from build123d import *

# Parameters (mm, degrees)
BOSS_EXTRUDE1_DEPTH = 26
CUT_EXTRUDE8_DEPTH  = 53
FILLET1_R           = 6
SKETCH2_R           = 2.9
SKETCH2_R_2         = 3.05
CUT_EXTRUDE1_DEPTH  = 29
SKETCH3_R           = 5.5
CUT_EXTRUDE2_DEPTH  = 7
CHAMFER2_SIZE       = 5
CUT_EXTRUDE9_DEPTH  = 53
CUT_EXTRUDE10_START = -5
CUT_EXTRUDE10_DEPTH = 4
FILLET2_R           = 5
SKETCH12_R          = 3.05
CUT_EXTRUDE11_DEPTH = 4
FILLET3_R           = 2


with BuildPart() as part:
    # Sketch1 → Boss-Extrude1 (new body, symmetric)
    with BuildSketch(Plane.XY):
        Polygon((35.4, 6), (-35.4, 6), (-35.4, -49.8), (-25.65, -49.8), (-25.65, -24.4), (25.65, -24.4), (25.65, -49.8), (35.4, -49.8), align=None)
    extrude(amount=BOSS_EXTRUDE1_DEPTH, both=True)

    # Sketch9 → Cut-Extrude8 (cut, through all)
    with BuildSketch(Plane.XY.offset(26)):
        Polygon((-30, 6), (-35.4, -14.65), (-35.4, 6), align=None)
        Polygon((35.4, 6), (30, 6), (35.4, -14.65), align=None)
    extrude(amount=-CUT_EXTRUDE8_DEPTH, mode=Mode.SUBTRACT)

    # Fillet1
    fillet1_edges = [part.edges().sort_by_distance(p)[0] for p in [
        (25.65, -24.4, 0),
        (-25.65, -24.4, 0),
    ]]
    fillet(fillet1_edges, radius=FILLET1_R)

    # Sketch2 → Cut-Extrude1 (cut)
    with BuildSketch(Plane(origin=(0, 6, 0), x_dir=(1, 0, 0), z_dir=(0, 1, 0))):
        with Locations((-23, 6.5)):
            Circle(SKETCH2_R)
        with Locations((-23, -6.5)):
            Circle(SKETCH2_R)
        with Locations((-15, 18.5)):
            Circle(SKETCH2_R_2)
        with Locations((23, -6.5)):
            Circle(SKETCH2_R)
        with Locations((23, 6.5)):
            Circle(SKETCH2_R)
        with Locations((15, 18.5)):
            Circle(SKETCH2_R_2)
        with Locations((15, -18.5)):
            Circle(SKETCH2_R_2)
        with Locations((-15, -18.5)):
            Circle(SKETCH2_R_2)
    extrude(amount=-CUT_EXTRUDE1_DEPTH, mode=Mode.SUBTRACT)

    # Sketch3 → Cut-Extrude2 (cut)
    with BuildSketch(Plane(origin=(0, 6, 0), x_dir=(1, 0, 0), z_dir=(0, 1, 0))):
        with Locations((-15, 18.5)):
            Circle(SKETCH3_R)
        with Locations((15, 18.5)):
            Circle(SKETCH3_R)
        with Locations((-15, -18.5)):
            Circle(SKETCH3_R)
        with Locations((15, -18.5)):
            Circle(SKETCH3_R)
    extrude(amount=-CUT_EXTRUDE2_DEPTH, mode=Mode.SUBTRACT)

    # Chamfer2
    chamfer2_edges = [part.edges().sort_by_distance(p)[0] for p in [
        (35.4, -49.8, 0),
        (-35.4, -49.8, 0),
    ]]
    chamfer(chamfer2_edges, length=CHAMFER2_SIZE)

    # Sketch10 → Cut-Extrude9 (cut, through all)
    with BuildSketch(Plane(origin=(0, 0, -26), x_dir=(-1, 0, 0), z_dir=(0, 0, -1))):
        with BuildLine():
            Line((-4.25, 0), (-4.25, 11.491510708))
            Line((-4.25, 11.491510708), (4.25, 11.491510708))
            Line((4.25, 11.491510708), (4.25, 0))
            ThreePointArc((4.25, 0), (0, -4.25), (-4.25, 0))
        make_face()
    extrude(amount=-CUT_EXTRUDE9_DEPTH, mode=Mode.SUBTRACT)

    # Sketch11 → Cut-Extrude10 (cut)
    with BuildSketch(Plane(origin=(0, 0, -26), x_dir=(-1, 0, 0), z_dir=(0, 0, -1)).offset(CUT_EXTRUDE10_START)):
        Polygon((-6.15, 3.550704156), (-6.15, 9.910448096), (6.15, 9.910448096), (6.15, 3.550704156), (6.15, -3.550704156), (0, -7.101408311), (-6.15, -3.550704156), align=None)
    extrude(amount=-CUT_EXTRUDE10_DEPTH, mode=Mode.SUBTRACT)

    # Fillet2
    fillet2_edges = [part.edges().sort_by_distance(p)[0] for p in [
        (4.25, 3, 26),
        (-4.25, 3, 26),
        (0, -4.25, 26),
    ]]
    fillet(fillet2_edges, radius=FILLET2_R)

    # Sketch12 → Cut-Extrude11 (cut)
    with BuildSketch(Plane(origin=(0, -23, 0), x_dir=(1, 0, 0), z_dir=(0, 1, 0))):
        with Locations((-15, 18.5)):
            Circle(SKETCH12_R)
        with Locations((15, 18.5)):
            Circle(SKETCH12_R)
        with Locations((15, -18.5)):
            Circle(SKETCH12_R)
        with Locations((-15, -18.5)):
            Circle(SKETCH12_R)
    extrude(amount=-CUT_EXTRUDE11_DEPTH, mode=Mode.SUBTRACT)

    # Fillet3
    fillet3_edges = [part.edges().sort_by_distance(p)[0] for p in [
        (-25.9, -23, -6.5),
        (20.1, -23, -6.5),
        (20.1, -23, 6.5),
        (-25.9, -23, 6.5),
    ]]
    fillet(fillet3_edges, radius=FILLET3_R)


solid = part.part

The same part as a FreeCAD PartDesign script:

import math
import FreeCAD as App
import Part
import Sketcher

V = App.Vector
Q = App.Units.Quantity


def edges_at(feature, points):
    """Names of the edges that pass closest to the given points."""
    edges = feature.Shape.Edges
    near = lambda p: min(range(len(edges)), key=lambda i: edges[i].distToShape(Part.Vertex(*p))[0])
    return sorted({f"Edge{near(p) + 1}" for p in points})

doc = App.newDocument("Part")
body = doc.addObject("PartDesign::Body", "Body")

# Sketch on XY plane
sketch1 = body.newObject("Sketcher::SketchObject", "Sketch")
sketch1.AttachmentSupport = (doc.getObject("XY_Plane"), [""])
sketch1.MapMode = "FlatFace"
sketch1.addGeometry([
    Part.LineSegment(V(35, 6, 0), V(-35, 6, 0)),  # 0
    Part.LineSegment(V(-35, 6, 0), V(-35, -50, 0)),  # 1
    Part.LineSegment(V(-35, -50, 0), V(-26, -50, 0)),  # 2
    Part.LineSegment(V(-26, -50, 0), V(-26, -24, 0)),  # 3
    Part.LineSegment(V(-26, -24, 0), V(26, -24, 0)),  # 4
    Part.LineSegment(V(26, -24, 0), V(26, -50, 0)),  # 5
    Part.LineSegment(V(26, -50, 0), V(35, -50, 0)),  # 6
    Part.LineSegment(V(35, -50, 0), V(35, 6, 0)),  # 7
], False)
sketch1.addConstraint([
    Sketcher.Constraint("Coincident", 0, 2, 1, 1),
    Sketcher.Constraint("Coincident", 1, 2, 2, 1),
    Sketcher.Constraint("Coincident", 2, 2, 3, 1),
    Sketcher.Constraint("Coincident", 3, 2, 4, 1),
    Sketcher.Constraint("Coincident", 4, 2, 5, 1),
    Sketcher.Constraint("Coincident", 5, 2, 6, 1),
    Sketcher.Constraint("Coincident", 6, 2, 7, 1),
    Sketcher.Constraint("Coincident", 7, 2, 0, 1),
    Sketcher.Constraint("Horizontal", 0),
    Sketcher.Constraint("Vertical", 1),
    Sketcher.Constraint("Horizontal", 2),
    Sketcher.Constraint("Vertical", 3),
    Sketcher.Constraint("Horizontal", 4),
    Sketcher.Constraint("Vertical", 5),
    Sketcher.Constraint("Horizontal", 6),
    Sketcher.Constraint("Vertical", 7),
    Sketcher.Constraint("Symmetric", 2, 2, 5, 2, -2),
    Sketcher.Constraint("Equal", 2, 6),
    Sketcher.Constraint("DistanceX", 0, 2, 0, 1, Q("70.8 mm")),
    Sketcher.Constraint("DistanceX", 4, 1, 4, 2, Q("51.3 mm")),
    Sketcher.Constraint("DistanceY", 1, 2, 1, 1, Q("55.8 mm")),
    Sketcher.Constraint("DistanceY", 3, 1, 3, 2, Q("25.4 mm")),
    Sketcher.Constraint("DistanceY", -1, 1, 0, 2, Q("6 mm")),
])
pad1 = body.newObject("PartDesign::Pad", "Pad")
pad1.Profile = sketch1
pad1.Length = 52
pad1.Midplane = True

# Sketch on XY plane
sketch2 = body.newObject("Sketcher::SketchObject", "Sketch001")
sketch2.AttachmentSupport = (doc.getObject("XY_Plane"), [""])
sketch2.MapMode = "FlatFace"
sketch2.AttachmentOffset = App.Placement(V(0, 0, 26), App.Rotation())
sketch2.addGeometry([
    Part.LineSegment(V(-35, -15, 0), V(-30, 6, 0)),  # 0
    Part.LineSegment(V(-30, 6, 0), V(-35, 6, 0)),  # 1
    Part.LineSegment(V(-35, 6, 0), V(-35, -15, 0)),  # 2
    Part.LineSegment(V(35, 6, 0), V(30, 6, 0)),  # 3
    Part.LineSegment(V(30, 6, 0), V(35, -15, 0)),  # 4
    Part.LineSegment(V(35, -15, 0), V(35, 6, 0)),  # 5
], False)
sketch2.addConstraint([
    Sketcher.Constraint("Coincident", 0, 2, 1, 1),
    Sketcher.Constraint("Coincident", 1, 2, 2, 1),
    Sketcher.Constraint("Coincident", 2, 2, 0, 1),
    Sketcher.Constraint("Coincident", 3, 2, 4, 1),
    Sketcher.Constraint("Coincident", 4, 2, 5, 1),
    Sketcher.Constraint("Coincident", 5, 2, 3, 1),
    Sketcher.Constraint("Horizontal", 1),
    Sketcher.Constraint("Vertical", 2),
    Sketcher.Constraint("Horizontal", 3),
    Sketcher.Constraint("Vertical", 5),
    Sketcher.Constraint("Symmetric", 0, 2, 3, 2, -2),
    Sketcher.Constraint("Symmetric", 2, 2, 4, 2, -2),
    Sketcher.Constraint("DistanceX", 1, 2, 1, 1, Q("5.4 mm")),
    Sketcher.Constraint("DistanceX", 0, 2, -1, 1, Q("30 mm")),
    Sketcher.Constraint("DistanceY", -1, 1, 0, 2, Q("6 mm")),
    Sketcher.Constraint("DistanceY", 2, 2, 2, 1, Q("20.65 mm")),
])
pocket1 = body.newObject("PartDesign::Pocket", "Pocket")
pocket1.Profile = sketch2
pocket1.Type = "ThroughAll"
doc.recompute()

fillet = body.newObject("PartDesign::Fillet", "Fillet")
fillet.Base = (pocket1, edges_at(pocket1, [(25.65, -24.4, 0), (-25.65, -24.4, 0)]))
fillet.Radius = 6

# Sketch on XZ plane
sketch3 = body.newObject("Sketcher::SketchObject", "Sketch002")
sketch3.AttachmentSupport = (doc.getObject("XZ_Plane"), [""])
sketch3.MapMode = "FlatFace"
sketch3.AttachmentOffset = App.Placement(V(0, 0, -6), App.Rotation())
sketch3.addGeometry([
    Part.Circle(V(-23, -6.5, 0), V(0, 0, 1), 2.9),  # 0
    Part.Circle(V(-23, 6.5, 0), V(0, 0, 1), 2.9),  # 1
    Part.Circle(V(-15, -18.5, 0), V(0, 0, 1), 3),  # 2
    Part.Circle(V(23, 6.5, 0), V(0, 0, 1), 2.9),  # 3
    Part.Circle(V(23, -6.5, 0), V(0, 0, 1), 2.9),  # 4
    Part.Circle(V(15, -18.5, 0), V(0, 0, 1), 3),  # 5
    Part.Circle(V(15, 18.5, 0), V(0, 0, 1), 3),  # 6
    Part.Circle(V(-15, 18.5, 0), V(0, 0, 1), 3),  # 7
], False)
sketch3.addConstraint([
    Sketcher.Constraint("Equal", 0, 1),
    Sketcher.Constraint("Equal", 1, 3),
    Sketcher.Constraint("Equal", 3, 4),
    Sketcher.Constraint("Equal", 2, 5),
    Sketcher.Constraint("Equal", 5, 6),
    Sketcher.Constraint("Equal", 6, 7),
    Sketcher.Constraint("Symmetric", 0, 3, 3, 3, -1, 1),
    Sketcher.Constraint("Symmetric", 1, 3, 4, 3, -1, 1),
    Sketcher.Constraint("Symmetric", 2, 3, 6, 3, -1, 1),
    Sketcher.Constraint("Symmetric", 5, 3, 7, 3, -1, 1),
    Sketcher.Constraint("Symmetric", 1, 3, 3, 3, -2),
    Sketcher.Constraint("Symmetric", 2, 3, 5, 3, -2),
    Sketcher.Constraint("Diameter", 0, Q("5.8 mm")),
    Sketcher.Constraint("Diameter", 2, Q("6.1 mm")),
    Sketcher.Constraint("DistanceX", 0, 3, -1, 1, Q("23 mm")),
    Sketcher.Constraint("DistanceX", 2, 3, -1, 1, Q("15 mm")),
    Sketcher.Constraint("DistanceY", 0, 3, 1, 3, Q("13 mm")),
    Sketcher.Constraint("DistanceY", 2, 3, 0, 3, Q("12 mm")),
])
pocket2 = body.newObject("PartDesign::Pocket", "Pocket001")
pocket2.Profile = sketch3
pocket2.Length = 29
pocket2.Reversed = True

# Sketch on XZ plane
sketch4 = body.newObject("Sketcher::SketchObject", "Sketch003")
sketch4.AttachmentSupport = (doc.getObject("XZ_Plane"), [""])
sketch4.MapMode = "FlatFace"
sketch4.AttachmentOffset = App.Placement(V(0, 0, -6), App.Rotation())
sketch4.addGeometry([
    Part.Circle(V(-15, -18, 0), V(0, 0, 1), 6),
    Part.Circle(V(15, -18, 0), V(0, 0, 1), 6),
    Part.Circle(V(-15, 18, 0), V(0, 0, 1), 6),
    Part.Circle(V(15, 18, 0), V(0, 0, 1), 6),
], False)
sketch4.addConstraint([
    Sketcher.Constraint("Equal", 0, 1),
    Sketcher.Constraint("Equal", 1, 2),
    Sketcher.Constraint("Equal", 2, 3),
    Sketcher.Constraint("Symmetric", 1, 3, 2, 3, -1, 1),
    Sketcher.Constraint("Symmetric", 0, 3, 3, 3, -1, 1),
    Sketcher.Constraint("Symmetric", 0, 3, 1, 3, -2),
    Sketcher.Constraint("Diameter", 0, Q("11 mm")),
    Sketcher.Constraint("DistanceX", 0, 3, -1, 1, Q("15 mm")),
    Sketcher.Constraint("DistanceY", 0, 3, 2, 3, Q("37 mm")),
])
pocket3 = body.newObject("PartDesign::Pocket", "Pocket002")
pocket3.Profile = sketch4
pocket3.Length = 7
pocket3.Reversed = True
doc.recompute()

chamfer = body.newObject("PartDesign::Chamfer", "Chamfer")
chamfer.Base = (pocket3, edges_at(pocket3, [(35.4, -49.8, 0), (-35.4, -49.8, 0)]))
chamfer.Size = 5

# Sketch on XY plane
sketch5 = body.newObject("Sketcher::SketchObject", "Sketch004")
sketch5.AttachmentSupport = (doc.getObject("XY_Plane"), [""])
sketch5.MapMode = "FlatFace"
sketch5.AttachmentOffset = App.Placement(V(0, 0, -26), App.Rotation())
sketch5.addGeometry([
    Part.LineSegment(V(4.2, 11.5, 0), V(4.2, 0, 0)),
    Part.ArcOfCircle(Part.Circle(V(0, 0, 0), V(0, 0, 1), 4.2), math.radians(180), math.radians(360)),
    Part.LineSegment(V(-4.2, 0, 0), V(-4.2, 11.5, 0)),
    Part.LineSegment(V(-4.2, 11.5, 0), V(4.2, 11.5, 0)),
], False)
sketch5.addConstraint([
    Sketcher.Constraint("Tangent", 0, 2, 1, 2),
    Sketcher.Constraint("Tangent", 1, 1, 2, 1),
    Sketcher.Constraint("Coincident", 2, 2, 3, 1),
    Sketcher.Constraint("Coincident", 3, 2, 0, 1),
    Sketcher.Constraint("Vertical", 0),
    Sketcher.Constraint("Vertical", 2),
    Sketcher.Constraint("Horizontal", 3),
    Sketcher.Constraint("Coincident", 1, 3, -1, 1),
    Sketcher.Constraint("Radius", 1, Q("4.25 mm")),
    Sketcher.Constraint("DistanceY", 0, 2, 0, 1, Q("11.491511 mm")),
])
pocket4 = body.newObject("PartDesign::Pocket", "Pocket003")
pocket4.Profile = sketch5
pocket4.Type = "ThroughAll"
pocket4.Reversed = True

# Sketch on XY plane
sketch6 = body.newObject("Sketcher::SketchObject", "Sketch005")
sketch6.AttachmentSupport = (doc.getObject("XY_Plane"), [""])
sketch6.MapMode = "FlatFace"
sketch6.AttachmentOffset = App.Placement(V(0, 0, -21), App.Rotation())
sketch6.addGeometry([
    Part.LineSegment(V(6, 10, 0), V(6, -4, 0)),  # 0
    Part.LineSegment(V(6, -4, 0), V(0, -7, 0)),  # 1
    Part.LineSegment(V(0, -7, 0), V(-6, -4, 0)),  # 2
    Part.LineSegment(V(-6, -4, 0), V(-6, 10, 0)),  # 3
    Part.LineSegment(V(-6, 10, 0), V(6, 10, 0)),  # 4
], False)
sketch6.addConstraint([
    Sketcher.Constraint("Coincident", 0, 2, 1, 1),
    Sketcher.Constraint("Coincident", 1, 2, 2, 1),
    Sketcher.Constraint("Coincident", 2, 2, 3, 1),
    Sketcher.Constraint("Coincident", 3, 2, 4, 1),
    Sketcher.Constraint("Coincident", 4, 2, 0, 1),
    Sketcher.Constraint("Vertical", 0),
    Sketcher.Constraint("Vertical", 3),
    Sketcher.Constraint("Horizontal", 4),
    Sketcher.Constraint("Symmetric", 0, 2, 2, 2, -2),
    Sketcher.Constraint("PointOnObject", 1, 2, -2),
    Sketcher.Constraint("Angle", 1, Q("-150 deg")),
    Sketcher.Constraint("DistanceX", 4, 1, 4, 2, Q("12.3 mm")),
    Sketcher.Constraint("DistanceY", 0, 2, 0, 1, Q("13.461152 mm")),
    Sketcher.Constraint("DistanceY", 1, 2, -1, 1, Q("7.101408 mm")),
])
pocket5 = body.newObject("PartDesign::Pocket", "Pocket004")
pocket5.Profile = sketch6
pocket5.Length = 4
pocket5.Reversed = True
doc.recompute()

fillet2 = body.newObject("PartDesign::Fillet", "Fillet001")
fillet2.Base = (pocket5, edges_at(pocket5, [(4.25, 3, 26), (-4.25, 3, 26), (0, -4.25, 26)]))
fillet2.Radius = 5

# Sketch on XZ plane
sketch7 = body.newObject("Sketcher::SketchObject", "Sketch006")
sketch7.AttachmentSupport = (doc.getObject("XZ_Plane"), [""])
sketch7.MapMode = "FlatFace"
sketch7.AttachmentOffset = App.Placement(V(0, 0, 23), App.Rotation())
sketch7.addGeometry([
    Part.Circle(V(-15, -18.5, 0), V(0, 0, 1), 3),
    Part.Circle(V(15, -18.5, 0), V(0, 0, 1), 3),
    Part.Circle(V(15, 18.5, 0), V(0, 0, 1), 3),
    Part.Circle(V(-15, 18.5, 0), V(0, 0, 1), 3),
], False)
sketch7.addConstraint([
    Sketcher.Constraint("Equal", 0, 1),
    Sketcher.Constraint("Equal", 1, 2),
    Sketcher.Constraint("Equal", 2, 3),
    Sketcher.Constraint("Symmetric", 0, 3, 2, 3, -1, 1),
    Sketcher.Constraint("Symmetric", 1, 3, 3, 3, -1, 1),
    Sketcher.Constraint("Symmetric", 0, 3, 1, 3, -2),
    Sketcher.Constraint("Diameter", 0, Q("6.1 mm")),
    Sketcher.Constraint("DistanceX", 0, 3, -1, 1, Q("15 mm")),
    Sketcher.Constraint("DistanceY", 1, 3, 2, 3, Q("37 mm")),
])
pocket6 = body.newObject("PartDesign::Pocket", "Pocket005")
pocket6.Profile = sketch7
pocket6.Length = 4
pocket6.Reversed = True
doc.recompute()

fillet3 = body.newObject("PartDesign::Fillet", "Fillet002")
fillet3.Base = (pocket6, edges_at(pocket6, [
    (-25.9, -23, -6.5),
    (20.1, -23, -6.5),
    (20.1, -23, 6.5),
    (-25.9, -23, 6.5),
]))
fillet3.Radius = 2

doc.recompute()
